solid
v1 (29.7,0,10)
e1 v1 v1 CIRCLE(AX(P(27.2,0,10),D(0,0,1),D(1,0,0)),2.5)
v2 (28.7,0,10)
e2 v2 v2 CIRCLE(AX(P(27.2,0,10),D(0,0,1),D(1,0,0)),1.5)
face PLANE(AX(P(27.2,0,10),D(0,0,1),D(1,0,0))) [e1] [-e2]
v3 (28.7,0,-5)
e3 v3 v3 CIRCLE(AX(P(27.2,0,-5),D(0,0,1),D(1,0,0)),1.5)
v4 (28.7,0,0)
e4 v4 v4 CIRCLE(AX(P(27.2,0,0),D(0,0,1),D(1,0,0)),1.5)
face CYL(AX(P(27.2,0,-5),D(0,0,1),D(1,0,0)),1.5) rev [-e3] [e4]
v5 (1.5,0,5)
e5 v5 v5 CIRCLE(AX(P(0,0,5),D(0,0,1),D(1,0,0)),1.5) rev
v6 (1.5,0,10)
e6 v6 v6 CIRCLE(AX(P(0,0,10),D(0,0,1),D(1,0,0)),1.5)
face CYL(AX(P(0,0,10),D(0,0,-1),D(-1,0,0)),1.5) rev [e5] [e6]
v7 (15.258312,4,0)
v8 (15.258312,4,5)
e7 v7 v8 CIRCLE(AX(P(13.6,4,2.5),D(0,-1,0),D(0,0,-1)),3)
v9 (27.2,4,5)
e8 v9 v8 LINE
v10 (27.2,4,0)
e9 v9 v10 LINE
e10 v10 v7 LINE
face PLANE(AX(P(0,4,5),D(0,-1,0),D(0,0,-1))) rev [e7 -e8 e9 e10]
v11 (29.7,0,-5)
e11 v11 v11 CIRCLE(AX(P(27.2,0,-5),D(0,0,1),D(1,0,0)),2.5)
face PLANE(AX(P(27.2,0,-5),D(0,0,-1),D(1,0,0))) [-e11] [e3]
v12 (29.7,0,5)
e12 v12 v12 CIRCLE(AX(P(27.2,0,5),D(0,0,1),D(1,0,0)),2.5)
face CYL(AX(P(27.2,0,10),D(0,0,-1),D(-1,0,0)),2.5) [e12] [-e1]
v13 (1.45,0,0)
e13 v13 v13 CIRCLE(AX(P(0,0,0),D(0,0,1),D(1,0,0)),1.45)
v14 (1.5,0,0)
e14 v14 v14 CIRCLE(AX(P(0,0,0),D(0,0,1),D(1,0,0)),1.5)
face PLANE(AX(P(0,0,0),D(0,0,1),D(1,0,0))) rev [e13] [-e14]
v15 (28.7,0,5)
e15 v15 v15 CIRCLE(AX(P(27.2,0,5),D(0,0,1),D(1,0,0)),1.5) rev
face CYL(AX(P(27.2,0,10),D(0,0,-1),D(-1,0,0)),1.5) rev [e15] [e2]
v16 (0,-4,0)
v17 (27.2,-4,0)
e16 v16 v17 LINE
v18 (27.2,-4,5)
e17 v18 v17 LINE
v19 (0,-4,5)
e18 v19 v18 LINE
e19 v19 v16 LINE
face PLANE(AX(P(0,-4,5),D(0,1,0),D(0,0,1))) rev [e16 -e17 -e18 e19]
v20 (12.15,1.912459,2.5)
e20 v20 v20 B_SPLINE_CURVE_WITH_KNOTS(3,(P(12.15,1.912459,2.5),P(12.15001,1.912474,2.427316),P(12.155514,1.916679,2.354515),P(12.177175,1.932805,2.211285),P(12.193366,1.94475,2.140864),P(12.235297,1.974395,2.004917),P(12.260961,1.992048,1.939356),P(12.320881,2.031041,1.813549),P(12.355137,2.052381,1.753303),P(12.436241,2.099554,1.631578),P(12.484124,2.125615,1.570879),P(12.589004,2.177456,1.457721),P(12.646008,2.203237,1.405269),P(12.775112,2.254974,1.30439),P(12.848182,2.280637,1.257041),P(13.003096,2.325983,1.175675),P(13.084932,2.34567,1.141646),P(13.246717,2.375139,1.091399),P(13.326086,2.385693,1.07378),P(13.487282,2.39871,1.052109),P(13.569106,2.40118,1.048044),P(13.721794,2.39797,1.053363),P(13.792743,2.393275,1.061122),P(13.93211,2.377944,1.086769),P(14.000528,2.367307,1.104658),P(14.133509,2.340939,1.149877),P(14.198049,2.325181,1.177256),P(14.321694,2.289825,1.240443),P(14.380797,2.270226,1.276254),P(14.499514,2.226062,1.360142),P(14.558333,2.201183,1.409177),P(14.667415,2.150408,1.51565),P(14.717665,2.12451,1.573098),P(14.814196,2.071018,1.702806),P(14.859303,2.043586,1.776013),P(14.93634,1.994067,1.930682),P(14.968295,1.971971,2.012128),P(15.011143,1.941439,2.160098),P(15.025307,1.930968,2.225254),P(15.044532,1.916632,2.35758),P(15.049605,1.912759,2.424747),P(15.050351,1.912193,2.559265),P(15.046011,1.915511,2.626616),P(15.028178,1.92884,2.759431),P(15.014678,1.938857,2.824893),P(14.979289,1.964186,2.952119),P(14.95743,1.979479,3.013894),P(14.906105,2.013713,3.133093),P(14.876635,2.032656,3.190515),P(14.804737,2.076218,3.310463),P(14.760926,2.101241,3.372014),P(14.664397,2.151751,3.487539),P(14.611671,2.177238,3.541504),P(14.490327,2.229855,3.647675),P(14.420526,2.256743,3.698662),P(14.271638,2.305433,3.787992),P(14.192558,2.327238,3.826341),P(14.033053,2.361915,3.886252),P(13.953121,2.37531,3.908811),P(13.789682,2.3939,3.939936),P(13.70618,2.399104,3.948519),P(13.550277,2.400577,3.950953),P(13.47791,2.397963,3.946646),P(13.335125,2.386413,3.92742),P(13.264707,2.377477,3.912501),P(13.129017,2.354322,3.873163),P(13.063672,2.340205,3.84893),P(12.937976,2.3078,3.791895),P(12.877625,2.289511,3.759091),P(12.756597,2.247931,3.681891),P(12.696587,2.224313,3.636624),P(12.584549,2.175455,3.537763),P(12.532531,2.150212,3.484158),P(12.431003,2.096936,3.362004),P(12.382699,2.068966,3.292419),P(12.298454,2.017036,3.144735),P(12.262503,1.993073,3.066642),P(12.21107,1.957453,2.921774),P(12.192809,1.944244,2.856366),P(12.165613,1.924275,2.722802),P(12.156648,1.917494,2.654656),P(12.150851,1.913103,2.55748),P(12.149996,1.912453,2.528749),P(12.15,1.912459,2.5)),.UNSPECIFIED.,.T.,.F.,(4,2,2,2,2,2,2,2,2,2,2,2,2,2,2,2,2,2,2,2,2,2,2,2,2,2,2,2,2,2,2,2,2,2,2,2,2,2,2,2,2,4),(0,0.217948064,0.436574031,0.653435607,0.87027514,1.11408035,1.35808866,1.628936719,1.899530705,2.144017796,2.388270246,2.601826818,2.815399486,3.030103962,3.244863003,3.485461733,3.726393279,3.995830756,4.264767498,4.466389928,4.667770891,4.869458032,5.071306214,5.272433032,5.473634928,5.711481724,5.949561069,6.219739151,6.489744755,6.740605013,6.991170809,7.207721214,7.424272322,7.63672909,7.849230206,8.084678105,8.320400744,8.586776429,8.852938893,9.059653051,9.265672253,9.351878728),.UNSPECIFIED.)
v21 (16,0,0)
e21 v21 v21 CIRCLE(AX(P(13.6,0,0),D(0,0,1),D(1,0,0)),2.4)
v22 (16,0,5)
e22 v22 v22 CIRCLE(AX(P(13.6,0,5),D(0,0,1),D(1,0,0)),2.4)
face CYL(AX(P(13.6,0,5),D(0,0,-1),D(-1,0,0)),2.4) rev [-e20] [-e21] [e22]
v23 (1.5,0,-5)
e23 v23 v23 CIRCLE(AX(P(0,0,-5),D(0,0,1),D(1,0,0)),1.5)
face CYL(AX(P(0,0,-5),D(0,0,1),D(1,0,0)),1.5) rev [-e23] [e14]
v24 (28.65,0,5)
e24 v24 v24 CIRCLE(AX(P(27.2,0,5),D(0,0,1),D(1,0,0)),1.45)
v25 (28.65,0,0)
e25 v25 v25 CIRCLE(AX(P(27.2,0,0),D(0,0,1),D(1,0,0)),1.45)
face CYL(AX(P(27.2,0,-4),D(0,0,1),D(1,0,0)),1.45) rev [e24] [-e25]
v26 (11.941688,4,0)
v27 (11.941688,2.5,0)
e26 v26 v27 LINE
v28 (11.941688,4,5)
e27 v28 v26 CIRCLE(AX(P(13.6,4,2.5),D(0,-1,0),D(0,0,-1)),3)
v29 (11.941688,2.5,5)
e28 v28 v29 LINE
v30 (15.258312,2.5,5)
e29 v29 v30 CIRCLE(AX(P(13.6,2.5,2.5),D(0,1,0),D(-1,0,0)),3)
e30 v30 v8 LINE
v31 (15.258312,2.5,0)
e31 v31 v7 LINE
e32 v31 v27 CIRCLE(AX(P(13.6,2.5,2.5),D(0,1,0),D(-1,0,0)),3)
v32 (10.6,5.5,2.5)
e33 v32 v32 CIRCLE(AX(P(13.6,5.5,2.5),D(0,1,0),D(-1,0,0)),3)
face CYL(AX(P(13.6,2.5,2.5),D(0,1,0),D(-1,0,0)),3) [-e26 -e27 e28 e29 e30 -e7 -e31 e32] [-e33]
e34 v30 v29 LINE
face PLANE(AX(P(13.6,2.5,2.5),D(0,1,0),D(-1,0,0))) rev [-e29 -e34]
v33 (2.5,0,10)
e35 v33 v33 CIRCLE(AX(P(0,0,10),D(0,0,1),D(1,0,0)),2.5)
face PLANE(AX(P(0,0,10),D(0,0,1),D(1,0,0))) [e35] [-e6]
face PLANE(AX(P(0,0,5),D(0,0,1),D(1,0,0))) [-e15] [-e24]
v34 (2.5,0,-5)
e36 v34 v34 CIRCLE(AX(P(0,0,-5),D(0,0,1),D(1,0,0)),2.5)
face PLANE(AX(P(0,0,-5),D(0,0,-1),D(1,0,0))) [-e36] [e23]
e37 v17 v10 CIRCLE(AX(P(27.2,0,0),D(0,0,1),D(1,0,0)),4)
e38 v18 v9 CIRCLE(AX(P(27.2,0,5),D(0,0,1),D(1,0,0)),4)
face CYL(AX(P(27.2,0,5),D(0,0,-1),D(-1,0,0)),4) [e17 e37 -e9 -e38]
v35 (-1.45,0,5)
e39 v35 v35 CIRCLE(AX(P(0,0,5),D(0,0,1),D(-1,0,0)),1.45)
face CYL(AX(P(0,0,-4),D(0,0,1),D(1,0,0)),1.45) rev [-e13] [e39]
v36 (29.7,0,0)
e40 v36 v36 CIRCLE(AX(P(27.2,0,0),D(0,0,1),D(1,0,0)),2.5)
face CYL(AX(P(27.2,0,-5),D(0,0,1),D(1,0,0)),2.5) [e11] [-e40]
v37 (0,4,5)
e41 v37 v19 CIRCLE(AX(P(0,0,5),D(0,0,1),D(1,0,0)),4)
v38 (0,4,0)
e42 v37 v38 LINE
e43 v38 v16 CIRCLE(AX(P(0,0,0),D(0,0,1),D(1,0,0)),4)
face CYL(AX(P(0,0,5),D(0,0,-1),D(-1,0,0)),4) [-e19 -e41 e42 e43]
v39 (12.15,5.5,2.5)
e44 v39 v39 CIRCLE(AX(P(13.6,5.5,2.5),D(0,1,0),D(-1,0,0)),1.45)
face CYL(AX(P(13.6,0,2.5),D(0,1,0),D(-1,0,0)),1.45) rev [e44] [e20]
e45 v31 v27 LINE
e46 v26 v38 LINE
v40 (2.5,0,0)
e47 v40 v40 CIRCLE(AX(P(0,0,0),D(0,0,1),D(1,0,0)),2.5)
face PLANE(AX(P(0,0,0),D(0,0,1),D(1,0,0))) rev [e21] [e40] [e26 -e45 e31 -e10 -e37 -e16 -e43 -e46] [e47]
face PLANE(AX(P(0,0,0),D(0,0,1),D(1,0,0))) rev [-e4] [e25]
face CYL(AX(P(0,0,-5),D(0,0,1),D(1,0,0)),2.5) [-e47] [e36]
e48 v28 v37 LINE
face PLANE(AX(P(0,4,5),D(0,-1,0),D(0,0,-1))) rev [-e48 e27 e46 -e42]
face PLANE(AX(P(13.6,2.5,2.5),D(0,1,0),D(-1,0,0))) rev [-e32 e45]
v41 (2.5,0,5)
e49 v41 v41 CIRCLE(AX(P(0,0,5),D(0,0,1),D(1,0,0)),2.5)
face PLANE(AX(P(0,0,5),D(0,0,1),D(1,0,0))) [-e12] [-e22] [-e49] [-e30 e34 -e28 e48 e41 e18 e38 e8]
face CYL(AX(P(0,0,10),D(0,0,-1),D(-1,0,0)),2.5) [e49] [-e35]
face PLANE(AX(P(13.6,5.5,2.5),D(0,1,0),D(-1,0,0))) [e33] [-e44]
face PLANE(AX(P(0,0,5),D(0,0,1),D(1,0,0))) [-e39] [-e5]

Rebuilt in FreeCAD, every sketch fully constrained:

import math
import FreeCAD as App
import Part
import Sketcher
Q = App.Units.Quantity

doc = App.newDocument("Part")
body = doc.addObject("PartDesign::Body", "Body")

# Sketch on XY plane
sketch1 = body.newObject("Sketcher::SketchObject", "Sketch")
sketch1.AttachmentSupport = (doc.getObject("XY_Plane"), [""])
sketch1.MapMode = "FlatFace"
sketch1.addGeometry(Part.LineSegment(App.Vector(27.2, 4, 0), App.Vector(0, 4, 0)), False)
sketch1.addGeometry(Part.ArcOfCircle(Part.Circle(App.Vector(0, 0, 0), App.Vector(0, 0, 1), 4), math.radians(90), math.radians(270)), False)
sketch1.addGeometry(Part.LineSegment(App.Vector(0, -4, 0), App.Vector(27.2, -4, 0)), False)
sketch1.addGeometry(Part.ArcOfCircle(Part.Circle(App.Vector(27.2, 0, 0), App.Vector(0, 0, 1), 4), math.radians(-90), math.radians(90)), False)
sketch1.addGeometry(Part.Circle(App.Vector(13.6, 0, 0), App.Vector(0, 0, 1), 2.4), False)
sketch1.addConstraint(Sketcher.Constraint("Tangent", 0, 2, 1, 1))
sketch1.addConstraint(Sketcher.Constraint("Tangent", 1, 2, 2, 1))
sketch1.addConstraint(Sketcher.Constraint("Tangent", 2, 2, 3, 1))
sketch1.addConstraint(Sketcher.Constraint("Tangent", 3, 2, 0, 1))
sketch1.addConstraint(Sketcher.Constraint("Horizontal", 0))
sketch1.addConstraint(Sketcher.Constraint("Horizontal", 2))
sketch1.addConstraint(Sketcher.Constraint("Coincident", 1, 3, -1, 1))
sketch1.addConstraint(Sketcher.Constraint("PointOnObject", 4, 3, -1))
sketch1.addConstraint(Sketcher.Constraint("Radius", 1, Q("4 mm")))
sketch1.addConstraint(Sketcher.Constraint("Diameter", 4, Q("4.8 mm")))
sketch1.addConstraint(Sketcher.Constraint("DistanceX", 0, 2, 0, 1, Q("27.2 mm")))
sketch1.addConstraint(Sketcher.Constraint("DistanceX", -1, 1, 4, 3, Q("13.6 mm")))
pad1 = body.newObject("PartDesign::Pad", "Pad")
pad1.Profile = sketch1
pad1.Length = 5

# Sketch on XZ plane
sketch2 = body.newObject("Sketcher::SketchObject", "Sketch001")
sketch2.AttachmentSupport = (doc.getObject("XZ_Plane"), [""])
sketch2.MapMode = "FlatFace"
sketch2.AttachmentOffset = App.Placement(App.Vector(0, 0, -4), App.Rotation())
sketch2.addGeometry(Part.Circle(App.Vector(13.6, 2.5, 0), App.Vector(0, 0, 1), 3), False)
sketch2.addConstraint(Sketcher.Constraint("Diameter", 0, Q("6 mm")))
sketch2.addConstraint(Sketcher.Constraint("DistanceX", -1, 1, 0, 3, Q("13.6 mm")))
sketch2.addConstraint(Sketcher.Constraint("DistanceY", -1, 1, 0, 3, Q("2.5 mm")))
pad2 = body.newObject("PartDesign::Pad", "Pad001")
pad2.Profile = sketch2
pad2.Length = 3
pad2.Midplane = True

# Sketch on XY plane
sketch3 = body.newObject("Sketcher::SketchObject", "Sketch002")
sketch3.AttachmentSupport = (doc.getObject("XY_Plane"), [""])
sketch3.MapMode = "FlatFace"
sketch3.AttachmentOffset = App.Placement(App.Vector(0, 0, 5), App.Rotation())
sketch3.addGeometry(Part.Circle(App.Vector(27.2, 0, 0), App.Vector(0, 0, 1), 1.45), False)
sketch3.addGeometry(Part.Circle(App.Vector(0, 0, 0), App.Vector(0, 0, 1), 1.45), False)
sketch3.addConstraint(Sketcher.Constraint("Coincident", 1, 3, -1, 1))
sketch3.addConstraint(Sketcher.Constraint("Equal", 0, 1))
sketch3.addConstraint(Sketcher.Constraint("PointOnObject", 0, 3, -1))
sketch3.addConstraint(Sketcher.Constraint("Diameter", 0, Q("2.9 mm")))
sketch3.addConstraint(Sketcher.Constraint("DistanceX", -1, 1, 0, 3, Q("27.2 mm")))
pocket1 = body.newObject("PartDesign::Pocket", "Pocket")
pocket1.Profile = sketch3
pocket1.Length = 9

# Sketch on XZ plane
sketch4 = body.newObject("Sketcher::SketchObject", "Sketch003")
sketch4.AttachmentSupport = (doc.getObject("XZ_Plane"), [""])
sketch4.MapMode = "FlatFace"
sketch4.AttachmentOffset = App.Placement(App.Vector(0, 0, -4), App.Rotation())
sketch4.addGeometry(Part.Circle(App.Vector(13.6, 2.5, 0), App.Vector(0, 0, 1), 1.45), False)
sketch4.addConstraint(Sketcher.Constraint("Diameter", 0, Q("2.9 mm")))
sketch4.addConstraint(Sketcher.Constraint("DistanceX", -1, 1, 0, 3, Q("13.6 mm")))
sketch4.addConstraint(Sketcher.Constraint("DistanceY", -1, 1, 0, 3, Q("2.5 mm")))
pocket2 = body.newObject("PartDesign::Pocket", "Pocket001")
pocket2.Profile = sketch4
pocket2.Length = 8
pocket2.Midplane = True

# Sketch on XY plane
sketch5 = body.newObject("Sketcher::SketchObject", "Sketch004")
sketch5.AttachmentSupport = (doc.getObject("XY_Plane"), [""])
sketch5.MapMode = "FlatFace"
sketch5.AttachmentOffset = App.Placement(App.Vector(0, 0, 5), App.Rotation())
sketch5.addGeometry(Part.Circle(App.Vector(27.2, 0, 0), App.Vector(0, 0, 1), 2.5), False)
sketch5.addGeometry(Part.Circle(App.Vector(27.2, 0, 0), App.Vector(0, 0, 1), 1.5), False)
sketch5.addGeometry(Part.Circle(App.Vector(0, 0, 0), App.Vector(0, 0, 1), 2.5), False)
sketch5.addGeometry(Part.Circle(App.Vector(0, 0, 0), App.Vector(0, 0, 1), 1.5), False)
sketch5.addConstraint(Sketcher.Constraint("Coincident", 2, 3, -1, 1))
sketch5.addConstraint(Sketcher.Constraint("Coincident", 3, 3, -1, 1))
sketch5.addConstraint(Sketcher.Constraint("Coincident", 1, 3, 0, 3))
sketch5.addConstraint(Sketcher.Constraint("Equal", 0, 2))
sketch5.addConstraint(Sketcher.Constraint("Equal", 1, 3))
sketch5.addConstraint(Sketcher.Constraint("PointOnObject", 0, 3, -1))
sketch5.addConstraint(Sketcher.Constraint("Diameter", 0, Q("5 mm")))
sketch5.addConstraint(Sketcher.Constraint("Diameter", 1, Q("3 mm")))
sketch5.addConstraint(Sketcher.Constraint("DistanceX", -1, 1, 0, 3, Q("27.2 mm")))
pad3 = body.newObject("PartDesign::Pad", "Pad002")
pad3.Profile = sketch5
pad3.Length = 5
doc.recompute()

datumplane = body.newObject("PartDesign::Plane", "DatumPlane")
datumplane.AttachmentSupport = (doc.getObject("XY_Plane"), [""])
datumplane.MapMode = "FlatFace"
datumplane.AttachmentOffset = App.Placement(App.Vector(0, 0, 2.5), App.Rotation())
mirrored = body.newObject("PartDesign::Mirrored", "Mirrored")
mirrored.Originals = [pocket1, pad3]
mirrored.MirrorPlane = (datumplane, [""])
body.Tip = mirrored

doc.recompute()
